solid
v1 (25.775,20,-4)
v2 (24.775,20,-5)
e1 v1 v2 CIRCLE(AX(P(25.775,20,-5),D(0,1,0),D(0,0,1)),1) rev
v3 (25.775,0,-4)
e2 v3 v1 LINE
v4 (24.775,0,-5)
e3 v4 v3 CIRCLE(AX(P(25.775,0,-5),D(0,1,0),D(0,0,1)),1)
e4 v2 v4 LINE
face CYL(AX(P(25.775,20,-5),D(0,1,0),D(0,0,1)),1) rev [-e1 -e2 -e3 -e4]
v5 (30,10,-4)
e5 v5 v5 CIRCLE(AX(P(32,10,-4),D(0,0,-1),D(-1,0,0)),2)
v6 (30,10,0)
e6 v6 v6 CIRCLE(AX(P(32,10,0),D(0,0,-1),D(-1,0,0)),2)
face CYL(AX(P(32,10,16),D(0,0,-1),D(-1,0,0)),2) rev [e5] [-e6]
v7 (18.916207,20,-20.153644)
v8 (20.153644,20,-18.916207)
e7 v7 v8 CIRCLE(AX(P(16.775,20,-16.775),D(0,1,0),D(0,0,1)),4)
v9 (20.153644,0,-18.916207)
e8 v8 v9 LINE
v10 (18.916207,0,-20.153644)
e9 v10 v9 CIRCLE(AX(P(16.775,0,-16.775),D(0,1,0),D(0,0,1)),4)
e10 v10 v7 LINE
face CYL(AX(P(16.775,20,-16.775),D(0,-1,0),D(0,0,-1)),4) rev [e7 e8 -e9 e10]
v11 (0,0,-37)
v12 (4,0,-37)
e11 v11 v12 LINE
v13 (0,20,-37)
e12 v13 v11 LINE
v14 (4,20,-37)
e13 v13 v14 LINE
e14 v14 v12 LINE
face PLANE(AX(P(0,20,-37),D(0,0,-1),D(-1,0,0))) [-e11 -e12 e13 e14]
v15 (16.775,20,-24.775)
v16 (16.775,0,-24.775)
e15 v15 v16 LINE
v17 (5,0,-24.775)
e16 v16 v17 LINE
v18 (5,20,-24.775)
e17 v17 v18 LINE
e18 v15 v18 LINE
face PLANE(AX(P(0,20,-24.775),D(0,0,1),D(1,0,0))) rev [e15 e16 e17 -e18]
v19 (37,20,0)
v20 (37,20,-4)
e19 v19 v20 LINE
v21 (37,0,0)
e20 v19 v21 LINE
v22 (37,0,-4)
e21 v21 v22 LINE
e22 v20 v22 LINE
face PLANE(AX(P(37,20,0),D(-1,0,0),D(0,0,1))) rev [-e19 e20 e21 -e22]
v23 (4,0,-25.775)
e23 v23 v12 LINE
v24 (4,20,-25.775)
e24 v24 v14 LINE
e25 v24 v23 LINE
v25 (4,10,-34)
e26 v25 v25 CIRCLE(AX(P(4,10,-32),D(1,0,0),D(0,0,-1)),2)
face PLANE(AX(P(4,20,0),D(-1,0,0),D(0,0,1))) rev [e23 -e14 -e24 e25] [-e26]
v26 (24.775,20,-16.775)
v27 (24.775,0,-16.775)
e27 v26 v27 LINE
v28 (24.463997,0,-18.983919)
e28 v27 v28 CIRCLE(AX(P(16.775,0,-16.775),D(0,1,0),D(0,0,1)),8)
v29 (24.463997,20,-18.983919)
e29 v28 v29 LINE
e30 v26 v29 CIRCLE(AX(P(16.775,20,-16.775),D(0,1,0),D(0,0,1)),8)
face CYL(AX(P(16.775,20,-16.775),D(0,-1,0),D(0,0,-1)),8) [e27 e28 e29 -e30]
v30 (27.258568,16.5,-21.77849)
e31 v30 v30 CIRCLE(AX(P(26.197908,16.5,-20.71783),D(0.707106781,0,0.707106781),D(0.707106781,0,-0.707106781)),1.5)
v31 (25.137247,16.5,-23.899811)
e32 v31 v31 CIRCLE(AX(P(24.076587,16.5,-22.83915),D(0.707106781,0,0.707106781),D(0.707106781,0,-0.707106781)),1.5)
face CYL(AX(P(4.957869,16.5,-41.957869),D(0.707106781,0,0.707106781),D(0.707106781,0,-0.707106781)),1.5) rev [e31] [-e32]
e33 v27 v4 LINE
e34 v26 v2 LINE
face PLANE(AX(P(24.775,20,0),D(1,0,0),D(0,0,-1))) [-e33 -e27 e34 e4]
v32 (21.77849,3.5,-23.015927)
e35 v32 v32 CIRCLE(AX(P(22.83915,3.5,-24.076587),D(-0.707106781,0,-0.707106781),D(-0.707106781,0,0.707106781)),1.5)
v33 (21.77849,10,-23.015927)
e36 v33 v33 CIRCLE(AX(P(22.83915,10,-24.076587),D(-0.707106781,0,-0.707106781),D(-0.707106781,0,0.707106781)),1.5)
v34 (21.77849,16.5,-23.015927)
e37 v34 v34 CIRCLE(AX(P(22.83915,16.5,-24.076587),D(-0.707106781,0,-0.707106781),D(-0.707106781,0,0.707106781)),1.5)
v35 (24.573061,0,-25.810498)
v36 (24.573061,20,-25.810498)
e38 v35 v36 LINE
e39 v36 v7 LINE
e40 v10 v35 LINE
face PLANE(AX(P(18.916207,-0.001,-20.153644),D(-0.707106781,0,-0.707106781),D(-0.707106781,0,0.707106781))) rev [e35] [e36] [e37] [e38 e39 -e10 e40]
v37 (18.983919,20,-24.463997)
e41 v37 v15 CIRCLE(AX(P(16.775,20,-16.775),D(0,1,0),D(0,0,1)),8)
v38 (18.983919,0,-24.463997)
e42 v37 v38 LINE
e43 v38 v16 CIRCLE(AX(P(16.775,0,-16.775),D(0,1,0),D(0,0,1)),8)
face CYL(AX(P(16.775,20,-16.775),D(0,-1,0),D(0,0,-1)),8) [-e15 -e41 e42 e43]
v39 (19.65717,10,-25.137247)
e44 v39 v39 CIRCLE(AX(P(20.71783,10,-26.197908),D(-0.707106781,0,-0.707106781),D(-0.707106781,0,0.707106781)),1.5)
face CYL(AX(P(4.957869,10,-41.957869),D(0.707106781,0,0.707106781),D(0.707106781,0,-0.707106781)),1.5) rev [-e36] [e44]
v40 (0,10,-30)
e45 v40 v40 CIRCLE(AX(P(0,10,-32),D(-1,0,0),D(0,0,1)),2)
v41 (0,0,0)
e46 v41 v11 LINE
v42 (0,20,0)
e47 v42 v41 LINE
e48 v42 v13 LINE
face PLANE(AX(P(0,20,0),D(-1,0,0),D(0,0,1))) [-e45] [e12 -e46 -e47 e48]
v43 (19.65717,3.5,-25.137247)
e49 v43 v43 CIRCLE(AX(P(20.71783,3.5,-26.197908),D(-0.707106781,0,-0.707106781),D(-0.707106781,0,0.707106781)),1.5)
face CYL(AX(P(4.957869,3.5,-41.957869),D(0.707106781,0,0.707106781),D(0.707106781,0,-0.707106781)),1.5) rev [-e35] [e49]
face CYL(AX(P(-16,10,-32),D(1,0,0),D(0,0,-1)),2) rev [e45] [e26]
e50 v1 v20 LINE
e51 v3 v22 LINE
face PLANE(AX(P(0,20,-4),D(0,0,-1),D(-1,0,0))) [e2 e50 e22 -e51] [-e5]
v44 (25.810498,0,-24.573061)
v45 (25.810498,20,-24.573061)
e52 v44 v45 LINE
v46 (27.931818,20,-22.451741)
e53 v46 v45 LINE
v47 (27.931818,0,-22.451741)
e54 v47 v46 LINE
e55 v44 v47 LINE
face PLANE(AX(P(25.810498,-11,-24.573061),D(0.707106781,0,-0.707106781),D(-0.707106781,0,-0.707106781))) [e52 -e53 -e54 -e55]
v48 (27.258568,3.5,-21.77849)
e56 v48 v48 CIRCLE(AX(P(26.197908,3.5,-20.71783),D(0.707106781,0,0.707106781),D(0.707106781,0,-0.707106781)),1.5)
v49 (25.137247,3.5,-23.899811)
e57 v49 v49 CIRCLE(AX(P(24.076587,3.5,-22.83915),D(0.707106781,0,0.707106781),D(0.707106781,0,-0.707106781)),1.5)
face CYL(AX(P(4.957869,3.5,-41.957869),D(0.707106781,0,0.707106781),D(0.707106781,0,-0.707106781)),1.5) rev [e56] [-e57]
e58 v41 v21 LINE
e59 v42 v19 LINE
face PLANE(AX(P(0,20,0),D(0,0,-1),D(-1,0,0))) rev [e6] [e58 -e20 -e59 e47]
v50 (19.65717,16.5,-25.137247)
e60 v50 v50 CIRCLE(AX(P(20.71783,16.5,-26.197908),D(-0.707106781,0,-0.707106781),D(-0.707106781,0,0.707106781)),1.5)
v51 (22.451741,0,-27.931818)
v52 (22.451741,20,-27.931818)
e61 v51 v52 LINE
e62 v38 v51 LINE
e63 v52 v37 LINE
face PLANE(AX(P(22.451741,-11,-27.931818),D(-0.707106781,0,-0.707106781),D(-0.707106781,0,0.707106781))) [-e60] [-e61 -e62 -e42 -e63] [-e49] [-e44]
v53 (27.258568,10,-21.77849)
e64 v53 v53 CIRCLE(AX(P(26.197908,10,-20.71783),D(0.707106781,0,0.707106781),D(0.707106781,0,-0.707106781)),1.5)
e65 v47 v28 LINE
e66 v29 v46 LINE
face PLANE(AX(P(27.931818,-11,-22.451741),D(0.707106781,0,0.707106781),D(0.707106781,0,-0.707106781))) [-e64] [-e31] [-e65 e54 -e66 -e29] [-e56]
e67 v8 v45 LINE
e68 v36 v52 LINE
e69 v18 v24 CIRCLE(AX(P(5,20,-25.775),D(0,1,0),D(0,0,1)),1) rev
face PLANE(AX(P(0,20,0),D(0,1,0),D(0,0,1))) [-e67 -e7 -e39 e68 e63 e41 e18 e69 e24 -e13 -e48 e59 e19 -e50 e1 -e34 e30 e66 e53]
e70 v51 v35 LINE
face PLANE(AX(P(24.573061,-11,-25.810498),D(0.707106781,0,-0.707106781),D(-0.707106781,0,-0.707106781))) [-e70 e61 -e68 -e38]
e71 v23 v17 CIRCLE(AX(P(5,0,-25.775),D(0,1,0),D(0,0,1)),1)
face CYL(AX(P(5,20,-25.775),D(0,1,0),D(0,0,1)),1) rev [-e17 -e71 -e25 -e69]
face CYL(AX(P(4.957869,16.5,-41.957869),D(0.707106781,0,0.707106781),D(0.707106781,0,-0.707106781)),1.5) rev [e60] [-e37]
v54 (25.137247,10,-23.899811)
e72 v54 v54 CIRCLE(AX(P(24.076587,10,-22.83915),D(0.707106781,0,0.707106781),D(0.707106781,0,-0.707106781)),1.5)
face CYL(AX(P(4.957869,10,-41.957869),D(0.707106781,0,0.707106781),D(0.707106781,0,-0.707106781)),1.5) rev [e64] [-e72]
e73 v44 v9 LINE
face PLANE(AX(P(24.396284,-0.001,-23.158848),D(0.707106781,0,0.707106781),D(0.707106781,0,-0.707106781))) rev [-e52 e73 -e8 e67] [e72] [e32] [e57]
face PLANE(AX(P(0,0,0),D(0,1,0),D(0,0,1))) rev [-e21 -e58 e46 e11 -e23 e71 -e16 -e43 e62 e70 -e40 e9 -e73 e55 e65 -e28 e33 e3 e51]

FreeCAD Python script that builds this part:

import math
import FreeCAD as App
import Part
import Sketcher
from FreeCAD import Vector
Q = App.Units.Quantity


def edges_at(feature, points):
    """Names of the edges that pass closest to the given points."""
    edges = feature.Shape.Edges
    near = lambda p: min(range(len(edges)), key=lambda i: edges[i].distToShape(Part.Vertex(*p))[0])
    return sorted({f"Edge{near(p) + 1}" for p in points})


def add_polygon(sketch, points):
    """Adds a closed chain of lines whose ends are joined by coincident constraints."""
    first, n = sketch.GeometryCount, len(points)
    for a, b in zip(points, points[1:] + points[:1]):
        sketch.addGeometry(Part.LineSegment(App.Vector(*a, 0), App.Vector(*b, 0)), False)
    for i in range(n):
        sketch.addConstraint(Sketcher.Constraint("Coincident", first + i, 2, first + (i + 1) % n, 1))

doc = App.newDocument("Part")
body = doc.addObject("PartDesign::Body", "Body")

sketch1 = doc.addObject("Sketcher::SketchObject", "Sketch")
body.addObject(sketch1)
sketch1.AttachmentSupport = (doc.XZ_Plane, [""])
sketch1.MapMode = "FlatFace"
sketch1.addGeometry([
    Part.LineSegment(Vector(16.8, -24.8, 0), Vector(4, -24.8, 0)),
    Part.LineSegment(Vector(4, -24.8, 0), Vector(4, -37, 0)),
    Part.LineSegment(Vector(4, -37, 0), Vector(0, -37, 0)),
    Part.LineSegment(Vector(0, -37, 0), Vector(0, 0, 0)),
    Part.LineSegment(Vector(0, 0, 0), Vector(37, 0, 0)),
    Part.LineSegment(Vector(37, 0, 0), Vector(37, -4, 0)),
    Part.LineSegment(Vector(37, -4, 0), Vector(24.8, -4, 0)),
    Part.LineSegment(Vector(24.8, -4, 0), Vector(24.8, -16.8, 0)),
    Part.ArcOfCircle(Part.Circle(Vector(16.8, -16.8, 0), Vector(0, 0, 1), 8), math.radians(-90), math.radians(0)),
    Part.Circle(Vector(16.8, -16.8, 0), Vector(0, 0, 1), 4),
], False)
sketch1.addConstraint([
    Sketcher.Constraint("Coincident", 0, 2, 1, 1),
    Sketcher.Constraint("Coincident", 1, 2, 2, 1),
    Sketcher.Constraint("Coincident", 2, 2, 3, 1),
    Sketcher.Constraint("Coincident", 3, 2, 4, 1),
    Sketcher.Constraint("Coincident", 4, 2, 5, 1),
    Sketcher.Constraint("Coincident", 5, 2, 6, 1),
    Sketcher.Constraint("Coincident", 6, 2, 7, 1),
    Sketcher.Constraint("Tangent", 7, 2, 8, 2),
    Sketcher.Constraint("Tangent", 8, 1, 0, 1),
    Sketcher.Constraint("Horizontal", 0),
    Sketcher.Constraint("Vertical", 1),
    Sketcher.Constraint("Horizontal", 2),
    Sketcher.Constraint("Vertical", 3),
    Sketcher.Constraint("Horizontal", 4),
    Sketcher.Constraint("Vertical", 5),
    Sketcher.Constraint("Horizontal", 6),
    Sketcher.Constraint("Vertical", 7),
    Sketcher.Constraint("Coincident", 3, 2, -1, 1),
    Sketcher.Constraint("Coincident", 9, 3, 8, 3),
    Sketcher.Constraint("Equal", 6, 1),
    Sketcher.Constraint("Equal", 4, 3),
    Sketcher.Constraint("Equal", 2, 5),
    Sketcher.Constraint("Diameter", 9, 8.0),
    Sketcher.Constraint("Radius", 8, 8.0),
    Sketcher.Constraint("DistanceX", 2, 2, 2, 1, 4.0),
    Sketcher.Constraint("DistanceX", 4, 1, 4, 2, 37.0),
    Sketcher.Constraint("DistanceX", 0, 2, 0, 1, 12.775),
])
pad1 = doc.addObject("PartDesign::Pad", "Pad")
body.addObject(pad1)
pad1.Profile = sketch1
pad1.Length = 20
pad1.Reversed = True
doc.recompute()

fillet = doc.addObject("PartDesign::Fillet", "Fillet")
body.addObject(fillet)
fillet.Base = (pad1, edges_at(pad1, [(24.775, 10, -4), (4, 10, -24.775)]))
fillet.Radius = 1

sketch2 = doc.addObject("Sketcher::SketchObject", "Sketch001")
body.addObject(sketch2)
sketch2.AttachmentSupport = (doc.XY_Plane, [""])
sketch2.MapMode = "FlatFace"
sketch2.AttachmentOffset = App.Placement(Vector(0, 0, -4), App.Rotation())
sketch2.addGeometry(Part.Circle(Vector(32, 10, 0), Vector(0, 0, 1), 2), False)
sketch2.addConstraint([
    Sketcher.Constraint("Diameter", 0, 4.0),
    Sketcher.Constraint("DistanceX", -1, 1, 0, 3, 32.0),
    Sketcher.Constraint("DistanceY", -1, 1, 0, 3, 10.0),
])
pocket1 = doc.addObject("PartDesign::Pocket", "Pocket")
body.addObject(pocket1)
pocket1.Profile = sketch2
pocket1.Length = 20
pocket1.Reversed = True

sketch3 = doc.addObject("Sketcher::SketchObject", "Sketch002")
body.addObject(sketch3)
sketch3.AttachmentSupport = (doc.YZ_Plane, [""])
sketch3.MapMode = "FlatFace"
sketch3.AttachmentOffset = App.Placement(Vector(0, 0, 4), App.Rotation())
sketch3.addGeometry(Part.Circle(Vector(10, -32, 0), Vector(0, 0, 1), 2), False)
sketch3.addConstraint([
    Sketcher.Constraint("Diameter", 0, 4.0),
    Sketcher.Constraint("DistanceX", -1, 1, 0, 3, 10.0),
    Sketcher.Constraint("DistanceY", 0, 3, -1, 1, 32.0),
])
pocket2 = doc.addObject("PartDesign::Pocket", "Pocket001")
body.addObject(pocket2)
pocket2.Profile = sketch3
pocket2.Length = 20

sketch4 = doc.addObject("Sketcher::SketchObject", "Sketch003")
body.addObject(sketch4)
sketch4.AttachmentSupport = (doc.XZ_Plane, [""])
sketch4.MapMode = "FlatFace"
sketch4.AttachmentOffset = App.Placement(Vector(0, 0, -20), App.Rotation())
add_polygon(sketch4, [(18.9, -20.2), (20.2, -18.9), (24.4, -23.2), (23.2, -24.4)])
sketch4.addConstraint([
    Sketcher.Constraint("Perpendicular", 0, 1),
    Sketcher.Constraint("Perpendicular", 1, 2),
    Sketcher.Constraint("Perpendicular", 2, 3),
    Sketcher.Constraint("Angle", 0, Q("45 deg")),
    Sketcher.Constraint("Distance", 1, 6.0),
    Sketcher.Constraint("Distance", 0, 1.75),
    Sketcher.Constraint("DistanceX", -1, 1, 0, 2, 20.153644),
    Sketcher.Constraint("DistanceY", 0, 2, -1, 1, 18.916207),
])
pocket3 = doc.addObject("PartDesign::Pocket", "Pocket002")
body.addObject(pocket3)
pocket3.Profile = sketch4
pocket3.Type = "UpToFirst"
pocket3.Reversed = True

sketch5 = doc.addObject("Sketcher::SketchObject", "Sketch004")
body.addObject(sketch5)
sketch5.AttachmentSupport = (doc.XZ_Plane, [""])
sketch5.MapMode = "FlatFace"
sketch5.AttachmentOffset = App.Placement(Vector(0, 0, -20), App.Rotation())
add_polygon(sketch5, [(18.9, -20.2), (24.6, -25.8), (22.5, -27.9), (16.8, -22.3)])
add_polygon(sketch5, [(20.2, -18.9), (22.3, -16.8), (27.9, -22.5), (25.8, -24.6)])
sketch5.addConstraint([
    Sketcher.Constraint("Perpendicular", 0, 1),
    Sketcher.Constraint("Perpendicular", 1, 2),
    Sketcher.Constraint("Perpendicular", 2, 3),
    Sketcher.Constraint("Parallel", 3, 4),
    Sketcher.Constraint("Perpendicular", 4, 5),
    Sketcher.Constraint("Perpendicular", 5, 6),
    Sketcher.Constraint("Perpendicular", 6, 7),
    Sketcher.Constraint("Equal", 3, 4),
    Sketcher.Constraint("Equal", 2, 5),
    Sketcher.Constraint("Angle", 0, Q("-45 deg")),
    Sketcher.Constraint("Distance", 0, 8.0),
    Sketcher.Constraint("Distance", 1, 3.0),
    Sketcher.Constraint("DistanceX", -1, 1, 0, 2, 24.573061),
    Sketcher.Constraint("DistanceY", 1, 2, -1, 1, 27.931818),
    Sketcher.Constraint("DistanceX", -1, 1, 5, 2, 27.931818),
    Sketcher.Constraint("DistanceY", 5, 2, -1, 1, 22.451741),
])
pad2 = doc.addObject("PartDesign::Pad", "Pad001")
body.addObject(pad2)
pad2.Profile = sketch5
pad2.Length = 20

sketch6 = doc.addObject("Sketcher::SketchObject", "Sketch005")
body.addObject(sketch6)
sketch6.Placement = App.Placement(Vector(2.740039, 0, 2.740039), App.Rotation(Vector(0.707106781, 0, -0.707106781), Vector(0, 0.999999999, 0), Vector(0.707106781, 0, 0.707106781), "ZXY"))
sketch6.addGeometry([
    Part.Circle(Vector(33.2, 16.5, 0), Vector(0, 0, 1), 1.5),
    Part.Circle(Vector(33.2, 10, 0), Vector(0, 0, 1), 1.5),
    Part.Circle(Vector(33.2, 3.5, 0), Vector(0, 0, 1), 1.5),
], False)
sketch6.addConstraint([
    Sketcher.Constraint("Equal", 0, 1),
    Sketcher.Constraint("Equal", 1, 2),
    Sketcher.Constraint("Vertical", 0, 3, 1, 3),
    Sketcher.Constraint("Vertical", 1, 3, 2, 3),
    Sketcher.Constraint("Diameter", 0, 3.0),
    Sketcher.Constraint("DistanceY", -1, 1, 1, 3, 10.0),
    Sketcher.Constraint("DistanceY", 2, 3, 0, 3, 13.0),
    Sketcher.Constraint("DistanceY", -1, 1, 0, 3, 16.5),
    Sketcher.Constraint("DistanceX", -1, 1, 0, 3, 33.174436),
])
pocket4 = doc.addObject("PartDesign::Pocket", "Pocket003")
body.addObject(pocket4)
pocket4.Profile = sketch6
pocket4.Type = "ThroughAll"
pocket4.Midplane = True

doc.recompute()
